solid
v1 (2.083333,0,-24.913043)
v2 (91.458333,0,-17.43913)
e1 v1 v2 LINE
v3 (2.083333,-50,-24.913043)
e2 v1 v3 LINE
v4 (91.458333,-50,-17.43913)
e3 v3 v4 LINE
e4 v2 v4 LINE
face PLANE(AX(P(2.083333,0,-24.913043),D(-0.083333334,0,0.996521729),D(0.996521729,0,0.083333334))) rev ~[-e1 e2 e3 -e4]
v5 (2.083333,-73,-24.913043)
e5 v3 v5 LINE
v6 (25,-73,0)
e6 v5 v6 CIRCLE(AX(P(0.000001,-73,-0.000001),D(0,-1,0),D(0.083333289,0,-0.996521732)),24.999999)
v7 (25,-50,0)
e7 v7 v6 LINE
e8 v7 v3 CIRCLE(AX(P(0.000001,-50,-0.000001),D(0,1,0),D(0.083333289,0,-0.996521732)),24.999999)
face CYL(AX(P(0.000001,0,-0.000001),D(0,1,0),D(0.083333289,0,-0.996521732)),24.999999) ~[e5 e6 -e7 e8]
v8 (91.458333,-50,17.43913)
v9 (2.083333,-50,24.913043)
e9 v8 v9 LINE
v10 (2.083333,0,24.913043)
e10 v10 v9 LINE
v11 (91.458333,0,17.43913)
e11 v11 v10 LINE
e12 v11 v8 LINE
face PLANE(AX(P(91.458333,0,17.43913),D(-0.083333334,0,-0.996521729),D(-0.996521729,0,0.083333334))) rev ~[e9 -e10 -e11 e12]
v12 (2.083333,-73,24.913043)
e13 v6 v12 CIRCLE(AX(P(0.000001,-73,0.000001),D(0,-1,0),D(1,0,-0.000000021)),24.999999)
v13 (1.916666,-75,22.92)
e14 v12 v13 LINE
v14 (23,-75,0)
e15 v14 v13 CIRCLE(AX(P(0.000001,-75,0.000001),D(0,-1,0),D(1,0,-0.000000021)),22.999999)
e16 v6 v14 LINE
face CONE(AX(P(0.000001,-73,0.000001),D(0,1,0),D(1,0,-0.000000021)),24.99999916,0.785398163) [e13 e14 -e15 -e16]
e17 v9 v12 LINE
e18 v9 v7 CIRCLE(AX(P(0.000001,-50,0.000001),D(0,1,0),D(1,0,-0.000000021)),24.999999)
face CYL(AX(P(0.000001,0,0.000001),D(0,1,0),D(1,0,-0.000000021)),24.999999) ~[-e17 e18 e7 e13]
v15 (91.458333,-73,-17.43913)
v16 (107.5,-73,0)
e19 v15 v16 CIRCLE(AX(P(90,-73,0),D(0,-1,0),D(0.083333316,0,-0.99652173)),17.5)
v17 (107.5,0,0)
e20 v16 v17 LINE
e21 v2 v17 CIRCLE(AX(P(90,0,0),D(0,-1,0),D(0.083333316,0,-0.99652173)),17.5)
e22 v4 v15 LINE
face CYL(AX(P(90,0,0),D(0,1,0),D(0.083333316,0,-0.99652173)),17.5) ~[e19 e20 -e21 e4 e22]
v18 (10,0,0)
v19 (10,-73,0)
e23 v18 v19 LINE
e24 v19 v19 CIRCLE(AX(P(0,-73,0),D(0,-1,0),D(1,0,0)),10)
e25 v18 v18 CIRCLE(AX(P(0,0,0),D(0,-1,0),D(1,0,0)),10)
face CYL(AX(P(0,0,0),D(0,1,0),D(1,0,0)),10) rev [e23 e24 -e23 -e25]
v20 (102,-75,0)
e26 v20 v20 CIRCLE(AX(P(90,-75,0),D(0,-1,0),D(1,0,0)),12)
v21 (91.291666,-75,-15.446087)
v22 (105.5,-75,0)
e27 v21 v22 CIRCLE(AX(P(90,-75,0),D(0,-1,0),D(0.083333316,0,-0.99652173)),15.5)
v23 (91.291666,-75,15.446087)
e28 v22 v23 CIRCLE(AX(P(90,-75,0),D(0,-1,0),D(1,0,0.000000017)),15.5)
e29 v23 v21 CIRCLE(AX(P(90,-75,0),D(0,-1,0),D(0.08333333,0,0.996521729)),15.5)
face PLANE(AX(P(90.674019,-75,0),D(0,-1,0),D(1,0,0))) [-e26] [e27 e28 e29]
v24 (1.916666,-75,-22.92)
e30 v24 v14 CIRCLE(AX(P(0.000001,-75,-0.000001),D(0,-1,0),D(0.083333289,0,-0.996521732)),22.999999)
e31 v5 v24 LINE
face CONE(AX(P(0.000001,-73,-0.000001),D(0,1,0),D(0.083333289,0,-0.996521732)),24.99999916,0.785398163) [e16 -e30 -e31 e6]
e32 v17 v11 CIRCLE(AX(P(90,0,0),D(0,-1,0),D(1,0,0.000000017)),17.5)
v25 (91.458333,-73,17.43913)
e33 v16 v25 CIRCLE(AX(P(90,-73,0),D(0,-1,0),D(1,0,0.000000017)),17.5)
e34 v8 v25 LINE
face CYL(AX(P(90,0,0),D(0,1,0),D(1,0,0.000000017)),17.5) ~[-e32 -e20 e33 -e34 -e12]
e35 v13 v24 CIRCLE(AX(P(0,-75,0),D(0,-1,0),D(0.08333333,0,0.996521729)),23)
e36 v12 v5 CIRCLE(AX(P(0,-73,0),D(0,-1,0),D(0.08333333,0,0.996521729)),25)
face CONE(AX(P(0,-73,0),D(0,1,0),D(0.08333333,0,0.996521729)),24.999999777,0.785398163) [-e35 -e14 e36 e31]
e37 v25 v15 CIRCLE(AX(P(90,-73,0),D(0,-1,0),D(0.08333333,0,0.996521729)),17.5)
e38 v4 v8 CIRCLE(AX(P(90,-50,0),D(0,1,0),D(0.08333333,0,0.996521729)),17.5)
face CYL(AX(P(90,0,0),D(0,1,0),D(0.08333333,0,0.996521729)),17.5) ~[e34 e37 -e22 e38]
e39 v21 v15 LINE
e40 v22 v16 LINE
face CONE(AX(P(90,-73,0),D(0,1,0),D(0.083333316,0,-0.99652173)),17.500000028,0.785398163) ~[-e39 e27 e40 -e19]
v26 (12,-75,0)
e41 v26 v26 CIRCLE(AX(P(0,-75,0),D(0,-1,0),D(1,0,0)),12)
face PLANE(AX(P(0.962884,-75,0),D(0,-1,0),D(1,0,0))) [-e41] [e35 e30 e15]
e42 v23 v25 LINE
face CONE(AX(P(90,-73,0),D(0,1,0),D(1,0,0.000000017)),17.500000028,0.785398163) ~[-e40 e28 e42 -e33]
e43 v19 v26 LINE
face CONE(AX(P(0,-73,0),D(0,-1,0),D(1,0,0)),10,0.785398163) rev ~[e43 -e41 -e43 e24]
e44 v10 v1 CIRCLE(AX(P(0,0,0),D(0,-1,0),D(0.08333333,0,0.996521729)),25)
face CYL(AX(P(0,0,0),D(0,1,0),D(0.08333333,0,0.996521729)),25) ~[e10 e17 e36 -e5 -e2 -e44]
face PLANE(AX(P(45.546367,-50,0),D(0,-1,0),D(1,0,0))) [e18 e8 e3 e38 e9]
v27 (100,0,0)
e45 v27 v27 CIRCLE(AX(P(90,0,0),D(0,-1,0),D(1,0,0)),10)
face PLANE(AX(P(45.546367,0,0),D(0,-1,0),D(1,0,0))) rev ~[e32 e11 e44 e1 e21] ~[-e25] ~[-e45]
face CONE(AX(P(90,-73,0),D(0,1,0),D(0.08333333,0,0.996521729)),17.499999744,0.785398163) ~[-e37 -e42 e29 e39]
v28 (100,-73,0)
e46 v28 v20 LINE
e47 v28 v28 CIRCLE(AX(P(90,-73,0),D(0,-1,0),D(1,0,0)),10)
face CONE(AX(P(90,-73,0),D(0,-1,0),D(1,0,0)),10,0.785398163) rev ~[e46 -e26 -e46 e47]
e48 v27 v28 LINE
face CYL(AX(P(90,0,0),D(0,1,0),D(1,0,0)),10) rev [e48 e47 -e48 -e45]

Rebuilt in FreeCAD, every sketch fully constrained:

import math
import FreeCAD as App
import Part
import Sketcher


def edges_at(feature, points):
    """Names of the edges that pass closest to the given points."""
    edges = feature.Shape.Edges
    near = lambda p: min(range(len(edges)), key=lambda i: edges[i].distToShape(Part.Vertex(*p))[0])
    return sorted({f"Edge{near(p) + 1}" for p in points})

doc = App.newDocument("Part")
body = doc.addObject("PartDesign::Body", "Body")

# Sketch on XZ plane
sketch1 = doc.addObject("Sketcher::SketchObject", "Sketch")
body.addObject(sketch1)
sketch1.AttachmentSupport = (doc.XZ_Plane, [""])
sketch1.MapMode = "FlatFace"
sketch1.addGeometry([
    Part.LineSegment(App.Vector(2.083333, -24.913043, 0), App.Vector(91.458333, -17.43913, 0)),  # 0
    Part.ArcOfCircle(Part.Circle(App.Vector(90, 0, 0), App.Vector(0, 0, 1), 17.5), math.radians(-85.219809), math.radians(-0.000001)),  # 1
    Part.ArcOfCircle(Part.Circle(App.Vector(90, 0, 0), App.Vector(0, 0, 1), 17.5), math.radians(0.000001), math.radians(85.219809)),  # 2
    Part.LineSegment(App.Vector(91.458333, 17.43913, 0), App.Vector(2.083333, 24.913043, 0)),  # 3
    Part.ArcOfCircle(Part.Circle(App.Vector(0, 0, 0), App.Vector(0, 0, 1), 25), math.radians(85.219808), math.radians(274.780192)),  # 4
    Part.Circle(App.Vector(0, 0, 0), App.Vector(0, 0, 1), 10),  # 5
    Part.Circle(App.Vector(90, 0, 0), App.Vector(0, 0, 1), 10),  # 6
], False)
sketch1.addConstraint([
    Sketcher.Constraint("Tangent", 0, 2, 1, 1),
    Sketcher.Constraint("Tangent", 1, 2, 2, 1),
    Sketcher.Constraint("Tangent", 2, 2, 3, 1),
    Sketcher.Constraint("Tangent", 3, 2, 4, 1),
    Sketcher.Constraint("Tangent", 4, 2, 0, 1),
    Sketcher.Constraint("Coincident", 4, 3, -1, 1),
    Sketcher.Constraint("Coincident", 5, 3, -1, 1),
    Sketcher.Constraint("Coincident", 6, 3, 1, 3),
    Sketcher.Constraint("Equal", 1, 2),
    Sketcher.Constraint("Equal", 5, 6),
    Sketcher.Constraint("PointOnObject", 1, 3, -1),
    Sketcher.Constraint("PointOnObject", 1, 2, -1),
    Sketcher.Constraint("Diameter", 5, 20.0),
    Sketcher.Constraint("Radius", 4, 25.0),
    Sketcher.Constraint("Radius", 1, 17.5),
    Sketcher.Constraint("DistanceX", -1, 1, 1, 3, 90.0),
])
pad1 = doc.addObject("PartDesign::Pad", "Pad")
body.addObject(pad1)
pad1.Profile = sketch1
pad1.Length = 50

# Sketch on XZ plane
sketch2 = doc.addObject("Sketcher::SketchObject", "Sketch001")
body.addObject(sketch2)
sketch2.AttachmentSupport = (doc.XZ_Plane, [""])
sketch2.MapMode = "FlatFace"
sketch2.addGeometry([
    Part.ArcOfCircle(Part.Circle(App.Vector(0.000001, -0.000001, 0), App.Vector(0, 0, 1), 24.999999), math.radians(-85.219811), math.radians(0.000001)),  # 0
    Part.ArcOfCircle(Part.Circle(App.Vector(0.000001, 0.000001, 0), App.Vector(0, 0, 1), 24.999999), math.radians(-0.000001), math.radians(85.219811)),  # 1
    Part.ArcOfCircle(Part.Circle(App.Vector(0, 0, 0), App.Vector(0, 0, 1), 25), math.radians(85.219808), math.radians(274.780192)),  # 2
    Part.Circle(App.Vector(0, 0, 0), App.Vector(0, 0, 1), 10),  # 3
    Part.ArcOfCircle(Part.Circle(App.Vector(90, 0, 0), App.Vector(0, 0, 1), 17.5), math.radians(0.000001), math.radians(85.219809)),  # 4
    Part.ArcOfCircle(Part.Circle(App.Vector(90, 0, 0), App.Vector(0, 0, 1), 17.5), math.radians(85.219808), math.radians(274.780192)),  # 5
    Part.ArcOfCircle(Part.Circle(App.Vector(90, 0, 0), App.Vector(0, 0, 1), 17.5), math.radians(-85.219809), math.radians(-0.000001)),  # 6
    Part.Circle(App.Vector(90, 0, 0), App.Vector(0, 0, 1), 10),  # 7
], False)
sketch2.addConstraint([
    Sketcher.Constraint("Tangent", 0, 2, 1, 1),
    Sketcher.Constraint("Tangent", 1, 2, 2, 1),
    Sketcher.Constraint("Tangent", 2, 2, 0, 1),
    Sketcher.Constraint("Tangent", 4, 2, 5, 1),
    Sketcher.Constraint("Tangent", 5, 2, 6, 1),
    Sketcher.Constraint("Tangent", 6, 2, 4, 1),
    Sketcher.Constraint("Coincident", 0, 3, -1, 1),
    Sketcher.Constraint("Coincident", 3, 3, -1, 1),
    Sketcher.Constraint("Coincident", 7, 3, 4, 3),
    Sketcher.Constraint("Equal", 3, 7),
    Sketcher.Constraint("Symmetric", 4, 2, 5, 2, -1),
    Sketcher.Constraint("PointOnObject", 0, 2, -1),
    Sketcher.Constraint("PointOnObject", 6, 2, -1),
    Sketcher.Constraint("Vertical", 1, 2, 2, 2),
    Sketcher.Constraint("Diameter", 3, 20.0),
    Sketcher.Constraint("Radius", 0, 24.999999),
    Sketcher.Constraint("Radius", 4, 17.5),
    Sketcher.Constraint("DistanceX", -1, 1, 4, 3, 90.0),
    Sketcher.Constraint("DistanceY", -1, 1, 4, 2, 17.43913),
    Sketcher.Constraint("DistanceX", -1, 1, 1, 2, 2.083333),
])
pad2 = doc.addObject("PartDesign::Pad", "Pad001")
body.addObject(pad2)
pad2.Profile = sketch2
pad2.Length = 75
doc.recompute()

chamfer = doc.addObject("PartDesign::Chamfer", "Chamfer")
body.addObject(chamfer)
chamfer.Base = (pad2, edges_at(pad2, [
    (-10, -75, 0),
    (-25, -75, 0),
    (80, -75, 0),
    (72.5, -75, 0),
]))
chamfer.Size = 2

doc.recompute()
